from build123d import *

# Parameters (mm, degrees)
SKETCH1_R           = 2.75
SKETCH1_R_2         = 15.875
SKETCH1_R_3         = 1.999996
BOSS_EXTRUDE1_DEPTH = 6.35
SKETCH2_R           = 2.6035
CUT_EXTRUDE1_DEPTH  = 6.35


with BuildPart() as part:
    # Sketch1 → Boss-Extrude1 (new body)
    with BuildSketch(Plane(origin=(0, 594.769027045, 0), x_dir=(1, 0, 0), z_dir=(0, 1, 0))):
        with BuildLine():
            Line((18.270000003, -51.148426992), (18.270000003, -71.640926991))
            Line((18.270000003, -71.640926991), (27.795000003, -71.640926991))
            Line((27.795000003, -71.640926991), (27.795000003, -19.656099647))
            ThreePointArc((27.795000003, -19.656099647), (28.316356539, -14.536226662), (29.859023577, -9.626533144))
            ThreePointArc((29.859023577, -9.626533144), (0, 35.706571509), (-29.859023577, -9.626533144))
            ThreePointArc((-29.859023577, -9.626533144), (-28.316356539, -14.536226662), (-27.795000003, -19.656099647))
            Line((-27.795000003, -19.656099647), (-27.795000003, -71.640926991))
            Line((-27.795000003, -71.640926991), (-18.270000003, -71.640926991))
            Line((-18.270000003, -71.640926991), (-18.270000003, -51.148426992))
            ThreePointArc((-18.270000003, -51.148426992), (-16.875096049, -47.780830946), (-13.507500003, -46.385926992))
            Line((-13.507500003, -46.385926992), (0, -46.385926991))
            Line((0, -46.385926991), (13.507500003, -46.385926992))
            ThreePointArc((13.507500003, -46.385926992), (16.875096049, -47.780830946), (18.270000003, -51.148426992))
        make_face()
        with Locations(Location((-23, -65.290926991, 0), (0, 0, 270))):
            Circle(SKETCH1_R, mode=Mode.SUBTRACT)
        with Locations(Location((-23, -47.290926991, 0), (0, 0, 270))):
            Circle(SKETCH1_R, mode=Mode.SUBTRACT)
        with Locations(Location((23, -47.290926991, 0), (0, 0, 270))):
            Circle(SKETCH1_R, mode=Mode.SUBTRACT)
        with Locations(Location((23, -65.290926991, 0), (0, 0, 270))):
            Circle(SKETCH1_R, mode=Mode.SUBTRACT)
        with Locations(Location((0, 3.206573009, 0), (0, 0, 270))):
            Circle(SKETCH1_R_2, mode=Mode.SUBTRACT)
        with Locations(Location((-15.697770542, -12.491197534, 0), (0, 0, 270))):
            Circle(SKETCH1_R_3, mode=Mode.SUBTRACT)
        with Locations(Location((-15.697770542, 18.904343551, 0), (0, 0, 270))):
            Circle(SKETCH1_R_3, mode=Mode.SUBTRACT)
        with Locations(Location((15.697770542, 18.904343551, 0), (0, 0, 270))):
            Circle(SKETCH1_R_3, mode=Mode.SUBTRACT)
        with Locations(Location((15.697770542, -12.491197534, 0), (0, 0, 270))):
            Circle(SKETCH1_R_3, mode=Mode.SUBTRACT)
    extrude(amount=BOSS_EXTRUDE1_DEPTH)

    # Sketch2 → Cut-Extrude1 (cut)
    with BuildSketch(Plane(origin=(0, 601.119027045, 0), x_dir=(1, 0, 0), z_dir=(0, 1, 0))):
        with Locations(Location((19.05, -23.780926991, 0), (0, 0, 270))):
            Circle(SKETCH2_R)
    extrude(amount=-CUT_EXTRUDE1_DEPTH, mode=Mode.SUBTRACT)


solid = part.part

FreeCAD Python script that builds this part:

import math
import FreeCAD as App
import Part
import Sketcher
Q = App.Units.Quantity

doc = App.newDocument("Part")
params = doc.addObject("Spreadsheet::Sheet", "Params")
for row, (alias, value) in enumerate([
    ("sketch1_radius", "1 in"),
    ("sketch1_diameter", "1.25 in"),
    ("sketch1_radius2", "0.1875 in"),
    ("sketch1_width", "0.375 in"),
    ("pad1_length", "0.25 in"),
    ("sketch2_diameter", "0.205 in"),
    ("pocket1_length", "0.25 in"),
], start=1):
    params.set(f"A{row}", alias)
    params.set(f"B{row}", "=" + value)
    params.setAlias(f"B{row}", alias)

body = doc.addObject("PartDesign::Body", "Body")

# Sketch on XZ plane
sketch1 = body.newObject("Sketcher::SketchObject", "Sketch")
sketch1.AttachmentSupport = (doc.getObject("XZ_Plane"), [""])
sketch1.MapMode = "FlatFace"
sketch1.AttachmentOffset = App.Placement(App.Vector(0, 0, -594.769027), App.Rotation())
sketch1.addGeometry([
    Part.LineSegment(App.Vector(18.3, 51.1, 0), App.Vector(18.3, 71.6, 0)),  # 0
    Part.LineSegment(App.Vector(18.3, 71.6, 0), App.Vector(27.8, 71.6, 0)),  # 1
    Part.LineSegment(App.Vector(27.8, 71.6, 0), App.Vector(27.8, 19.7, 0)),  # 2
    Part.ArcOfCircle(Part.Circle(App.Vector(53.2, 19.7, 0), App.Vector(0, 0, 1), 25.4), math.radians(-180), math.radians(-157)),  # 3
    Part.ArcOfCircle(Part.Circle(App.Vector(0, -3.2, 0), App.Vector(0, 0, 1), 32.5), math.radians(157), math.radians(383)),  # 4
    Part.ArcOfCircle(Part.Circle(App.Vector(-53.2, 19.7, 0), App.Vector(0, 0, 1), 25.4), math.radians(-23), math.radians(0)),  # 5
    Part.LineSegment(App.Vector(-27.8, 19.7, 0), App.Vector(-27.8, 71.6, 0)),  # 6
    Part.LineSegment(App.Vector(-27.8, 71.6, 0), App.Vector(-18.3, 71.6, 0)),  # 7
    Part.LineSegment(App.Vector(-18.3, 71.6, 0), App.Vector(-18.3, 51.1, 0)),  # 8
    Part.ArcOfCircle(Part.Circle(App.Vector(-13.5, 51.1, 0), App.Vector(0, 0, 1), 4.8), math.radians(180), math.radians(270)),  # 9
    Part.LineSegment(App.Vector(-13.5, 46.4, 0), App.Vector(0, 46.4, 0)),  # 10
    Part.LineSegment(App.Vector(0, 46.4, 0), App.Vector(13.5, 46.4, 0)),  # 11
    Part.ArcOfCircle(Part.Circle(App.Vector(13.5, 51.1, 0), App.Vector(0, 0, 1), 4.8), math.radians(-90), math.radians(0)),  # 12
    Part.Circle(App.Vector(-23, 65.3, 0), App.Vector(0, 0, 1), 2.8),  # 13
    Part.Circle(App.Vector(-23, 47.3, 0), App.Vector(0, 0, 1), 2.8),  # 14
    Part.Circle(App.Vector(23, 65.3, 0), App.Vector(0, 0, 1), 2.8),  # 15
    Part.Circle(App.Vector(23, 47.3, 0), App.Vector(0, 0, 1), 2.8),  # 16
    Part.Circle(App.Vector(-15.7, 12.5, 0), App.Vector(0, 0, 1), 2),  # 17
    Part.Circle(App.Vector(-15.7, -18.9, 0), App.Vector(0, 0, 1), 2),  # 18
    Part.Circle(App.Vector(0, -3.2, 0), App.Vector(0, 0, 1), 15.9),  # 19
    Part.Circle(App.Vector(15.7, 12.5, 0), App.Vector(0, 0, 1), 2),  # 20
    Part.Circle(App.Vector(15.7, -18.9, 0), App.Vector(0, 0, 1), 2),  # 21
], False)
sketch1.addConstraint([
    Sketcher.Constraint("Coincident", 0, 2, 1, 1),
    Sketcher.Constraint("Coincident", 1, 2, 2, 1),
    Sketcher.Constraint("Tangent", 2, 2, 3, 1),
    Sketcher.Constraint("Tangent", 3, 2, 4, 2),
    Sketcher.Constraint("Tangent", 4, 1, 5, 1),
    Sketcher.Constraint("Tangent", 5, 2, 6, 1),
    Sketcher.Constraint("Coincident", 6, 2, 7, 1),
    Sketcher.Constraint("Coincident", 7, 2, 8, 1),
    Sketcher.Constraint("Tangent", 8, 2, 9, 1),
    Sketcher.Constraint("Tangent", 9, 2, 10, 1),
    Sketcher.Constraint("Coincident", 10, 2, 11, 1),
    Sketcher.Constraint("Tangent", 11, 2, 12, 1),
    Sketcher.Constraint("Tangent", 12, 2, 0, 1),
    Sketcher.Constraint("Vertical", 0),
    Sketcher.Constraint("Horizontal", 1),
    Sketcher.Constraint("Vertical", 2),
    Sketcher.Constraint("Vertical", 6),
    Sketcher.Constraint("Horizontal", 7),
    Sketcher.Constraint("Vertical", 8),
    Sketcher.Constraint("Horizontal", 10),
    Sketcher.Constraint("Horizontal", 11),
    Sketcher.Constraint("Coincident", 19, 3, 4, 3),
    Sketcher.Constraint("Equal", 3, 5),
    Sketcher.Constraint("Equal", 9, 12),
    Sketcher.Constraint("Equal", 13, 14),
    Sketcher.Constraint("Equal", 14, 15),
    Sketcher.Constraint("Equal", 15, 16),
    Sketcher.Constraint("Equal", 17, 18),
    Sketcher.Constraint("Equal", 18, 20),
    Sketcher.Constraint("Equal", 20, 21),
    Sketcher.Constraint("Symmetric", 3, 3, 5, 3, -2),
    Sketcher.Constraint("Symmetric", 13, 3, 15, 3, -2),
    Sketcher.Constraint("Symmetric", 14, 3, 16, 3, -2),
    Sketcher.Constraint("Symmetric", 17, 3, 20, 3, -2),
    Sketcher.Constraint("Symmetric", 18, 3, 21, 3, -2),
    Sketcher.Constraint("Symmetric", 0, 2, 7, 2, -2),
    Sketcher.Constraint("PointOnObject", 10, 2, -2),
    Sketcher.Constraint("Vertical", 13, 3, 14, 3),
    Sketcher.Constraint("Vertical", 17, 3, 18, 3),
    Sketcher.Constraint("Radius", 3, Q("1 in")),
    Sketcher.Constraint("Diameter", 19, Q("1.25 in")),
    Sketcher.Constraint("Radius", 9, Q("0.1875 in")),
    Sketcher.Constraint("Diameter", 13, 5.5),
    Sketcher.Constraint("DistanceX", 1, 1, 1, 2, Q("0.375 in")),
    Sketcher.Constraint("Radius", 4, 32.499998),
    Sketcher.Constraint("DistanceY", 15, 3, 0, 2, Q("0.25 in")),
    Sketcher.Constraint("Diameter", 17, 3.999992),
    Sketcher.Constraint("DistanceX", 10, 1, 10, 2, 13.5075),
    Sketcher.Constraint("DistanceY", 0, 1, 0, 2, 20.4925),
    Sketcher.Constraint("DistanceY", -1, 1, 3, 3, 19.6561),
    Sketcher.Constraint("DistanceX", 13, 3, -1, 1, 23.0),
    Sketcher.Constraint("DistanceY", 4, 3, 9, 3, 54.355),
    Sketcher.Constraint("DistanceY", 14, 3, 9, 3, 3.8575),
    Sketcher.Constraint("DistanceX", 17, 3, -1, 1, 15.697771),
    Sketcher.Constraint("DistanceY", 4, 3, 17, 3, 15.697771),
    Sketcher.Constraint("DistanceY", 18, 3, 4, 3, 15.697771),
])
sketch1.setExpression("Constraints[39]", "Params.sketch1_radius")
sketch1.setExpression("Constraints[40]", "Params.sketch1_diameter")
sketch1.setExpression("Constraints[41]", "Params.sketch1_radius2")
sketch1.setExpression("Constraints[43]", "Params.sketch1_width")
pad1 = body.newObject("PartDesign::Pad", "Pad")
pad1.Profile = sketch1
pad1.setExpression("Length", "Params.pad1_length")
pad1.Reversed = True

# Sketch on XZ plane
sketch2 = body.newObject("Sketcher::SketchObject", "Sketch001")
sketch2.AttachmentSupport = (doc.getObject("XZ_Plane"), [""])
sketch2.MapMode = "FlatFace"
sketch2.AttachmentOffset = App.Placement(App.Vector(0, 0, -601.119027), App.Rotation())
sketch2.addGeometry(Part.Circle(App.Vector(19.1, 23.8, 0), App.Vector(0, 0, 1), 2.6), False)
sketch2.addConstraint([
    Sketcher.Constraint("Diameter", 0, Q("0.205 in")),
    Sketcher.Constraint("DistanceX", -1, 1, 0, 3, Q("0.75 in")),
    Sketcher.Constraint("DistanceY", -1, 1, 0, 3, 23.780927),
])
sketch2.setExpression("Constraints[0]", "Params.sketch2_diameter")
pocket1 = body.newObject("PartDesign::Pocket", "Pocket")
pocket1.Profile = sketch2
pocket1.setExpression("Length", "Params.pocket1_length")
pocket1.Reversed = True

doc.recompute()
